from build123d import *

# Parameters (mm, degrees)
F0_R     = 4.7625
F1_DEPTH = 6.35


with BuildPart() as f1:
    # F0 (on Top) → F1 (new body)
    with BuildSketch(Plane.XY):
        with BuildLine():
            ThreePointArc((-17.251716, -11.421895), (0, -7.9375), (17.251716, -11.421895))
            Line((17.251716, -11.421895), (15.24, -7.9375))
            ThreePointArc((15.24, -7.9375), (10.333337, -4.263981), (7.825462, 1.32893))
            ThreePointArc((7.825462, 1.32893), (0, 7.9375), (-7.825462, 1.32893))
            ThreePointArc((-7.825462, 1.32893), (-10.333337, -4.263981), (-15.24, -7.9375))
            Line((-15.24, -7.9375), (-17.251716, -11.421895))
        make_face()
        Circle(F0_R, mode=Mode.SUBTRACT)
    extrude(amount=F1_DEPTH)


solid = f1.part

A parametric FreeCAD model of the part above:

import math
import FreeCAD as App
import Part
import Sketcher
Q = App.Units.Quantity

doc = App.newDocument("Part")
body = doc.addObject("PartDesign::Body", "Body")

sketch1 = doc.addObject("Sketcher::SketchObject", "Sketch")
body.addObject(sketch1)
sketch1.AttachmentSupport = (doc.XY_Plane, [""])
sketch1.MapMode = "FlatFace"
sketch1.addGeometry([
    Part.ArcOfCircle(Part.Circle(App.Vector(0, -52.4, 0), App.Vector(0, 0, 1), 44.4), math.radians(67), math.radians(113)),
    Part.LineSegment(App.Vector(17.3, -11.4, 0), App.Vector(15.2, -7.9, 0)),
    Part.ArcOfCircle(Part.Circle(App.Vector(19.9, 3.4, 0), App.Vector(0, 0, 1), 12.2), math.radians(-170), math.radians(-112)),
    Part.ArcOfCircle(Part.Circle(App.Vector(0, 0, 0), App.Vector(0, 0, 1), 7.9), math.radians(10), math.radians(170)),
    Part.ArcOfCircle(Part.Circle(App.Vector(-19.9, 3.4, 0), App.Vector(0, 0, 1), 12.2), math.radians(-68), math.radians(-10)),
    Part.LineSegment(App.Vector(-15.2, -7.9, 0), App.Vector(-17.3, -11.4, 0)),
    Part.Circle(App.Vector(0, 0, 0), App.Vector(0, 0, 1), 4.8),
], False)
sketch1.addConstraint([
    Sketcher.Constraint("Coincident", 0, 1, 1, 1),
    Sketcher.Constraint("Coincident", 1, 2, 2, 2),
    Sketcher.Constraint("Tangent", 2, 1, 3, 1),
    Sketcher.Constraint("Tangent", 3, 2, 4, 2),
    Sketcher.Constraint("Coincident", 4, 1, 5, 1),
    Sketcher.Constraint("Coincident", 5, 2, 0, 2),
    Sketcher.Constraint("Coincident", 3, 3, -1, 1),
    Sketcher.Constraint("Coincident", 6, 3, -1, 1),
    Sketcher.Constraint("Equal", 2, 4),
    Sketcher.Constraint("Symmetric", 1, 2, 4, 1, -2),
    Sketcher.Constraint("Symmetric", 0, 1, 5, 2, -2),
    Sketcher.Constraint("Radius", 0, Q("1.75 in")),
    Sketcher.Constraint("Diameter", 6, Q("0.375 in")),
    Sketcher.Constraint("Angle", 1, Q("119.999995 deg")),
    Sketcher.Constraint("Radius", 3, Q("0.3125 in")),
    Sketcher.Constraint("DistanceX", -1, 1, 1, 2, Q("0.6 in")),
    Sketcher.Constraint("DistanceY", 0, 3, -1, 1, Q("2.0625 in")),
    Sketcher.Constraint("DistanceY", 1, 2, -1, 1, Q("0.3125 in")),
    Sketcher.Constraint("Radius", 2, 12.229156),
])
pad1 = doc.addObject("PartDesign::Pad", "Pad")
body.addObject(pad1)
pad1.Profile = sketch1
pad1.Length = Q("0.25 in")

doc.recompute()
